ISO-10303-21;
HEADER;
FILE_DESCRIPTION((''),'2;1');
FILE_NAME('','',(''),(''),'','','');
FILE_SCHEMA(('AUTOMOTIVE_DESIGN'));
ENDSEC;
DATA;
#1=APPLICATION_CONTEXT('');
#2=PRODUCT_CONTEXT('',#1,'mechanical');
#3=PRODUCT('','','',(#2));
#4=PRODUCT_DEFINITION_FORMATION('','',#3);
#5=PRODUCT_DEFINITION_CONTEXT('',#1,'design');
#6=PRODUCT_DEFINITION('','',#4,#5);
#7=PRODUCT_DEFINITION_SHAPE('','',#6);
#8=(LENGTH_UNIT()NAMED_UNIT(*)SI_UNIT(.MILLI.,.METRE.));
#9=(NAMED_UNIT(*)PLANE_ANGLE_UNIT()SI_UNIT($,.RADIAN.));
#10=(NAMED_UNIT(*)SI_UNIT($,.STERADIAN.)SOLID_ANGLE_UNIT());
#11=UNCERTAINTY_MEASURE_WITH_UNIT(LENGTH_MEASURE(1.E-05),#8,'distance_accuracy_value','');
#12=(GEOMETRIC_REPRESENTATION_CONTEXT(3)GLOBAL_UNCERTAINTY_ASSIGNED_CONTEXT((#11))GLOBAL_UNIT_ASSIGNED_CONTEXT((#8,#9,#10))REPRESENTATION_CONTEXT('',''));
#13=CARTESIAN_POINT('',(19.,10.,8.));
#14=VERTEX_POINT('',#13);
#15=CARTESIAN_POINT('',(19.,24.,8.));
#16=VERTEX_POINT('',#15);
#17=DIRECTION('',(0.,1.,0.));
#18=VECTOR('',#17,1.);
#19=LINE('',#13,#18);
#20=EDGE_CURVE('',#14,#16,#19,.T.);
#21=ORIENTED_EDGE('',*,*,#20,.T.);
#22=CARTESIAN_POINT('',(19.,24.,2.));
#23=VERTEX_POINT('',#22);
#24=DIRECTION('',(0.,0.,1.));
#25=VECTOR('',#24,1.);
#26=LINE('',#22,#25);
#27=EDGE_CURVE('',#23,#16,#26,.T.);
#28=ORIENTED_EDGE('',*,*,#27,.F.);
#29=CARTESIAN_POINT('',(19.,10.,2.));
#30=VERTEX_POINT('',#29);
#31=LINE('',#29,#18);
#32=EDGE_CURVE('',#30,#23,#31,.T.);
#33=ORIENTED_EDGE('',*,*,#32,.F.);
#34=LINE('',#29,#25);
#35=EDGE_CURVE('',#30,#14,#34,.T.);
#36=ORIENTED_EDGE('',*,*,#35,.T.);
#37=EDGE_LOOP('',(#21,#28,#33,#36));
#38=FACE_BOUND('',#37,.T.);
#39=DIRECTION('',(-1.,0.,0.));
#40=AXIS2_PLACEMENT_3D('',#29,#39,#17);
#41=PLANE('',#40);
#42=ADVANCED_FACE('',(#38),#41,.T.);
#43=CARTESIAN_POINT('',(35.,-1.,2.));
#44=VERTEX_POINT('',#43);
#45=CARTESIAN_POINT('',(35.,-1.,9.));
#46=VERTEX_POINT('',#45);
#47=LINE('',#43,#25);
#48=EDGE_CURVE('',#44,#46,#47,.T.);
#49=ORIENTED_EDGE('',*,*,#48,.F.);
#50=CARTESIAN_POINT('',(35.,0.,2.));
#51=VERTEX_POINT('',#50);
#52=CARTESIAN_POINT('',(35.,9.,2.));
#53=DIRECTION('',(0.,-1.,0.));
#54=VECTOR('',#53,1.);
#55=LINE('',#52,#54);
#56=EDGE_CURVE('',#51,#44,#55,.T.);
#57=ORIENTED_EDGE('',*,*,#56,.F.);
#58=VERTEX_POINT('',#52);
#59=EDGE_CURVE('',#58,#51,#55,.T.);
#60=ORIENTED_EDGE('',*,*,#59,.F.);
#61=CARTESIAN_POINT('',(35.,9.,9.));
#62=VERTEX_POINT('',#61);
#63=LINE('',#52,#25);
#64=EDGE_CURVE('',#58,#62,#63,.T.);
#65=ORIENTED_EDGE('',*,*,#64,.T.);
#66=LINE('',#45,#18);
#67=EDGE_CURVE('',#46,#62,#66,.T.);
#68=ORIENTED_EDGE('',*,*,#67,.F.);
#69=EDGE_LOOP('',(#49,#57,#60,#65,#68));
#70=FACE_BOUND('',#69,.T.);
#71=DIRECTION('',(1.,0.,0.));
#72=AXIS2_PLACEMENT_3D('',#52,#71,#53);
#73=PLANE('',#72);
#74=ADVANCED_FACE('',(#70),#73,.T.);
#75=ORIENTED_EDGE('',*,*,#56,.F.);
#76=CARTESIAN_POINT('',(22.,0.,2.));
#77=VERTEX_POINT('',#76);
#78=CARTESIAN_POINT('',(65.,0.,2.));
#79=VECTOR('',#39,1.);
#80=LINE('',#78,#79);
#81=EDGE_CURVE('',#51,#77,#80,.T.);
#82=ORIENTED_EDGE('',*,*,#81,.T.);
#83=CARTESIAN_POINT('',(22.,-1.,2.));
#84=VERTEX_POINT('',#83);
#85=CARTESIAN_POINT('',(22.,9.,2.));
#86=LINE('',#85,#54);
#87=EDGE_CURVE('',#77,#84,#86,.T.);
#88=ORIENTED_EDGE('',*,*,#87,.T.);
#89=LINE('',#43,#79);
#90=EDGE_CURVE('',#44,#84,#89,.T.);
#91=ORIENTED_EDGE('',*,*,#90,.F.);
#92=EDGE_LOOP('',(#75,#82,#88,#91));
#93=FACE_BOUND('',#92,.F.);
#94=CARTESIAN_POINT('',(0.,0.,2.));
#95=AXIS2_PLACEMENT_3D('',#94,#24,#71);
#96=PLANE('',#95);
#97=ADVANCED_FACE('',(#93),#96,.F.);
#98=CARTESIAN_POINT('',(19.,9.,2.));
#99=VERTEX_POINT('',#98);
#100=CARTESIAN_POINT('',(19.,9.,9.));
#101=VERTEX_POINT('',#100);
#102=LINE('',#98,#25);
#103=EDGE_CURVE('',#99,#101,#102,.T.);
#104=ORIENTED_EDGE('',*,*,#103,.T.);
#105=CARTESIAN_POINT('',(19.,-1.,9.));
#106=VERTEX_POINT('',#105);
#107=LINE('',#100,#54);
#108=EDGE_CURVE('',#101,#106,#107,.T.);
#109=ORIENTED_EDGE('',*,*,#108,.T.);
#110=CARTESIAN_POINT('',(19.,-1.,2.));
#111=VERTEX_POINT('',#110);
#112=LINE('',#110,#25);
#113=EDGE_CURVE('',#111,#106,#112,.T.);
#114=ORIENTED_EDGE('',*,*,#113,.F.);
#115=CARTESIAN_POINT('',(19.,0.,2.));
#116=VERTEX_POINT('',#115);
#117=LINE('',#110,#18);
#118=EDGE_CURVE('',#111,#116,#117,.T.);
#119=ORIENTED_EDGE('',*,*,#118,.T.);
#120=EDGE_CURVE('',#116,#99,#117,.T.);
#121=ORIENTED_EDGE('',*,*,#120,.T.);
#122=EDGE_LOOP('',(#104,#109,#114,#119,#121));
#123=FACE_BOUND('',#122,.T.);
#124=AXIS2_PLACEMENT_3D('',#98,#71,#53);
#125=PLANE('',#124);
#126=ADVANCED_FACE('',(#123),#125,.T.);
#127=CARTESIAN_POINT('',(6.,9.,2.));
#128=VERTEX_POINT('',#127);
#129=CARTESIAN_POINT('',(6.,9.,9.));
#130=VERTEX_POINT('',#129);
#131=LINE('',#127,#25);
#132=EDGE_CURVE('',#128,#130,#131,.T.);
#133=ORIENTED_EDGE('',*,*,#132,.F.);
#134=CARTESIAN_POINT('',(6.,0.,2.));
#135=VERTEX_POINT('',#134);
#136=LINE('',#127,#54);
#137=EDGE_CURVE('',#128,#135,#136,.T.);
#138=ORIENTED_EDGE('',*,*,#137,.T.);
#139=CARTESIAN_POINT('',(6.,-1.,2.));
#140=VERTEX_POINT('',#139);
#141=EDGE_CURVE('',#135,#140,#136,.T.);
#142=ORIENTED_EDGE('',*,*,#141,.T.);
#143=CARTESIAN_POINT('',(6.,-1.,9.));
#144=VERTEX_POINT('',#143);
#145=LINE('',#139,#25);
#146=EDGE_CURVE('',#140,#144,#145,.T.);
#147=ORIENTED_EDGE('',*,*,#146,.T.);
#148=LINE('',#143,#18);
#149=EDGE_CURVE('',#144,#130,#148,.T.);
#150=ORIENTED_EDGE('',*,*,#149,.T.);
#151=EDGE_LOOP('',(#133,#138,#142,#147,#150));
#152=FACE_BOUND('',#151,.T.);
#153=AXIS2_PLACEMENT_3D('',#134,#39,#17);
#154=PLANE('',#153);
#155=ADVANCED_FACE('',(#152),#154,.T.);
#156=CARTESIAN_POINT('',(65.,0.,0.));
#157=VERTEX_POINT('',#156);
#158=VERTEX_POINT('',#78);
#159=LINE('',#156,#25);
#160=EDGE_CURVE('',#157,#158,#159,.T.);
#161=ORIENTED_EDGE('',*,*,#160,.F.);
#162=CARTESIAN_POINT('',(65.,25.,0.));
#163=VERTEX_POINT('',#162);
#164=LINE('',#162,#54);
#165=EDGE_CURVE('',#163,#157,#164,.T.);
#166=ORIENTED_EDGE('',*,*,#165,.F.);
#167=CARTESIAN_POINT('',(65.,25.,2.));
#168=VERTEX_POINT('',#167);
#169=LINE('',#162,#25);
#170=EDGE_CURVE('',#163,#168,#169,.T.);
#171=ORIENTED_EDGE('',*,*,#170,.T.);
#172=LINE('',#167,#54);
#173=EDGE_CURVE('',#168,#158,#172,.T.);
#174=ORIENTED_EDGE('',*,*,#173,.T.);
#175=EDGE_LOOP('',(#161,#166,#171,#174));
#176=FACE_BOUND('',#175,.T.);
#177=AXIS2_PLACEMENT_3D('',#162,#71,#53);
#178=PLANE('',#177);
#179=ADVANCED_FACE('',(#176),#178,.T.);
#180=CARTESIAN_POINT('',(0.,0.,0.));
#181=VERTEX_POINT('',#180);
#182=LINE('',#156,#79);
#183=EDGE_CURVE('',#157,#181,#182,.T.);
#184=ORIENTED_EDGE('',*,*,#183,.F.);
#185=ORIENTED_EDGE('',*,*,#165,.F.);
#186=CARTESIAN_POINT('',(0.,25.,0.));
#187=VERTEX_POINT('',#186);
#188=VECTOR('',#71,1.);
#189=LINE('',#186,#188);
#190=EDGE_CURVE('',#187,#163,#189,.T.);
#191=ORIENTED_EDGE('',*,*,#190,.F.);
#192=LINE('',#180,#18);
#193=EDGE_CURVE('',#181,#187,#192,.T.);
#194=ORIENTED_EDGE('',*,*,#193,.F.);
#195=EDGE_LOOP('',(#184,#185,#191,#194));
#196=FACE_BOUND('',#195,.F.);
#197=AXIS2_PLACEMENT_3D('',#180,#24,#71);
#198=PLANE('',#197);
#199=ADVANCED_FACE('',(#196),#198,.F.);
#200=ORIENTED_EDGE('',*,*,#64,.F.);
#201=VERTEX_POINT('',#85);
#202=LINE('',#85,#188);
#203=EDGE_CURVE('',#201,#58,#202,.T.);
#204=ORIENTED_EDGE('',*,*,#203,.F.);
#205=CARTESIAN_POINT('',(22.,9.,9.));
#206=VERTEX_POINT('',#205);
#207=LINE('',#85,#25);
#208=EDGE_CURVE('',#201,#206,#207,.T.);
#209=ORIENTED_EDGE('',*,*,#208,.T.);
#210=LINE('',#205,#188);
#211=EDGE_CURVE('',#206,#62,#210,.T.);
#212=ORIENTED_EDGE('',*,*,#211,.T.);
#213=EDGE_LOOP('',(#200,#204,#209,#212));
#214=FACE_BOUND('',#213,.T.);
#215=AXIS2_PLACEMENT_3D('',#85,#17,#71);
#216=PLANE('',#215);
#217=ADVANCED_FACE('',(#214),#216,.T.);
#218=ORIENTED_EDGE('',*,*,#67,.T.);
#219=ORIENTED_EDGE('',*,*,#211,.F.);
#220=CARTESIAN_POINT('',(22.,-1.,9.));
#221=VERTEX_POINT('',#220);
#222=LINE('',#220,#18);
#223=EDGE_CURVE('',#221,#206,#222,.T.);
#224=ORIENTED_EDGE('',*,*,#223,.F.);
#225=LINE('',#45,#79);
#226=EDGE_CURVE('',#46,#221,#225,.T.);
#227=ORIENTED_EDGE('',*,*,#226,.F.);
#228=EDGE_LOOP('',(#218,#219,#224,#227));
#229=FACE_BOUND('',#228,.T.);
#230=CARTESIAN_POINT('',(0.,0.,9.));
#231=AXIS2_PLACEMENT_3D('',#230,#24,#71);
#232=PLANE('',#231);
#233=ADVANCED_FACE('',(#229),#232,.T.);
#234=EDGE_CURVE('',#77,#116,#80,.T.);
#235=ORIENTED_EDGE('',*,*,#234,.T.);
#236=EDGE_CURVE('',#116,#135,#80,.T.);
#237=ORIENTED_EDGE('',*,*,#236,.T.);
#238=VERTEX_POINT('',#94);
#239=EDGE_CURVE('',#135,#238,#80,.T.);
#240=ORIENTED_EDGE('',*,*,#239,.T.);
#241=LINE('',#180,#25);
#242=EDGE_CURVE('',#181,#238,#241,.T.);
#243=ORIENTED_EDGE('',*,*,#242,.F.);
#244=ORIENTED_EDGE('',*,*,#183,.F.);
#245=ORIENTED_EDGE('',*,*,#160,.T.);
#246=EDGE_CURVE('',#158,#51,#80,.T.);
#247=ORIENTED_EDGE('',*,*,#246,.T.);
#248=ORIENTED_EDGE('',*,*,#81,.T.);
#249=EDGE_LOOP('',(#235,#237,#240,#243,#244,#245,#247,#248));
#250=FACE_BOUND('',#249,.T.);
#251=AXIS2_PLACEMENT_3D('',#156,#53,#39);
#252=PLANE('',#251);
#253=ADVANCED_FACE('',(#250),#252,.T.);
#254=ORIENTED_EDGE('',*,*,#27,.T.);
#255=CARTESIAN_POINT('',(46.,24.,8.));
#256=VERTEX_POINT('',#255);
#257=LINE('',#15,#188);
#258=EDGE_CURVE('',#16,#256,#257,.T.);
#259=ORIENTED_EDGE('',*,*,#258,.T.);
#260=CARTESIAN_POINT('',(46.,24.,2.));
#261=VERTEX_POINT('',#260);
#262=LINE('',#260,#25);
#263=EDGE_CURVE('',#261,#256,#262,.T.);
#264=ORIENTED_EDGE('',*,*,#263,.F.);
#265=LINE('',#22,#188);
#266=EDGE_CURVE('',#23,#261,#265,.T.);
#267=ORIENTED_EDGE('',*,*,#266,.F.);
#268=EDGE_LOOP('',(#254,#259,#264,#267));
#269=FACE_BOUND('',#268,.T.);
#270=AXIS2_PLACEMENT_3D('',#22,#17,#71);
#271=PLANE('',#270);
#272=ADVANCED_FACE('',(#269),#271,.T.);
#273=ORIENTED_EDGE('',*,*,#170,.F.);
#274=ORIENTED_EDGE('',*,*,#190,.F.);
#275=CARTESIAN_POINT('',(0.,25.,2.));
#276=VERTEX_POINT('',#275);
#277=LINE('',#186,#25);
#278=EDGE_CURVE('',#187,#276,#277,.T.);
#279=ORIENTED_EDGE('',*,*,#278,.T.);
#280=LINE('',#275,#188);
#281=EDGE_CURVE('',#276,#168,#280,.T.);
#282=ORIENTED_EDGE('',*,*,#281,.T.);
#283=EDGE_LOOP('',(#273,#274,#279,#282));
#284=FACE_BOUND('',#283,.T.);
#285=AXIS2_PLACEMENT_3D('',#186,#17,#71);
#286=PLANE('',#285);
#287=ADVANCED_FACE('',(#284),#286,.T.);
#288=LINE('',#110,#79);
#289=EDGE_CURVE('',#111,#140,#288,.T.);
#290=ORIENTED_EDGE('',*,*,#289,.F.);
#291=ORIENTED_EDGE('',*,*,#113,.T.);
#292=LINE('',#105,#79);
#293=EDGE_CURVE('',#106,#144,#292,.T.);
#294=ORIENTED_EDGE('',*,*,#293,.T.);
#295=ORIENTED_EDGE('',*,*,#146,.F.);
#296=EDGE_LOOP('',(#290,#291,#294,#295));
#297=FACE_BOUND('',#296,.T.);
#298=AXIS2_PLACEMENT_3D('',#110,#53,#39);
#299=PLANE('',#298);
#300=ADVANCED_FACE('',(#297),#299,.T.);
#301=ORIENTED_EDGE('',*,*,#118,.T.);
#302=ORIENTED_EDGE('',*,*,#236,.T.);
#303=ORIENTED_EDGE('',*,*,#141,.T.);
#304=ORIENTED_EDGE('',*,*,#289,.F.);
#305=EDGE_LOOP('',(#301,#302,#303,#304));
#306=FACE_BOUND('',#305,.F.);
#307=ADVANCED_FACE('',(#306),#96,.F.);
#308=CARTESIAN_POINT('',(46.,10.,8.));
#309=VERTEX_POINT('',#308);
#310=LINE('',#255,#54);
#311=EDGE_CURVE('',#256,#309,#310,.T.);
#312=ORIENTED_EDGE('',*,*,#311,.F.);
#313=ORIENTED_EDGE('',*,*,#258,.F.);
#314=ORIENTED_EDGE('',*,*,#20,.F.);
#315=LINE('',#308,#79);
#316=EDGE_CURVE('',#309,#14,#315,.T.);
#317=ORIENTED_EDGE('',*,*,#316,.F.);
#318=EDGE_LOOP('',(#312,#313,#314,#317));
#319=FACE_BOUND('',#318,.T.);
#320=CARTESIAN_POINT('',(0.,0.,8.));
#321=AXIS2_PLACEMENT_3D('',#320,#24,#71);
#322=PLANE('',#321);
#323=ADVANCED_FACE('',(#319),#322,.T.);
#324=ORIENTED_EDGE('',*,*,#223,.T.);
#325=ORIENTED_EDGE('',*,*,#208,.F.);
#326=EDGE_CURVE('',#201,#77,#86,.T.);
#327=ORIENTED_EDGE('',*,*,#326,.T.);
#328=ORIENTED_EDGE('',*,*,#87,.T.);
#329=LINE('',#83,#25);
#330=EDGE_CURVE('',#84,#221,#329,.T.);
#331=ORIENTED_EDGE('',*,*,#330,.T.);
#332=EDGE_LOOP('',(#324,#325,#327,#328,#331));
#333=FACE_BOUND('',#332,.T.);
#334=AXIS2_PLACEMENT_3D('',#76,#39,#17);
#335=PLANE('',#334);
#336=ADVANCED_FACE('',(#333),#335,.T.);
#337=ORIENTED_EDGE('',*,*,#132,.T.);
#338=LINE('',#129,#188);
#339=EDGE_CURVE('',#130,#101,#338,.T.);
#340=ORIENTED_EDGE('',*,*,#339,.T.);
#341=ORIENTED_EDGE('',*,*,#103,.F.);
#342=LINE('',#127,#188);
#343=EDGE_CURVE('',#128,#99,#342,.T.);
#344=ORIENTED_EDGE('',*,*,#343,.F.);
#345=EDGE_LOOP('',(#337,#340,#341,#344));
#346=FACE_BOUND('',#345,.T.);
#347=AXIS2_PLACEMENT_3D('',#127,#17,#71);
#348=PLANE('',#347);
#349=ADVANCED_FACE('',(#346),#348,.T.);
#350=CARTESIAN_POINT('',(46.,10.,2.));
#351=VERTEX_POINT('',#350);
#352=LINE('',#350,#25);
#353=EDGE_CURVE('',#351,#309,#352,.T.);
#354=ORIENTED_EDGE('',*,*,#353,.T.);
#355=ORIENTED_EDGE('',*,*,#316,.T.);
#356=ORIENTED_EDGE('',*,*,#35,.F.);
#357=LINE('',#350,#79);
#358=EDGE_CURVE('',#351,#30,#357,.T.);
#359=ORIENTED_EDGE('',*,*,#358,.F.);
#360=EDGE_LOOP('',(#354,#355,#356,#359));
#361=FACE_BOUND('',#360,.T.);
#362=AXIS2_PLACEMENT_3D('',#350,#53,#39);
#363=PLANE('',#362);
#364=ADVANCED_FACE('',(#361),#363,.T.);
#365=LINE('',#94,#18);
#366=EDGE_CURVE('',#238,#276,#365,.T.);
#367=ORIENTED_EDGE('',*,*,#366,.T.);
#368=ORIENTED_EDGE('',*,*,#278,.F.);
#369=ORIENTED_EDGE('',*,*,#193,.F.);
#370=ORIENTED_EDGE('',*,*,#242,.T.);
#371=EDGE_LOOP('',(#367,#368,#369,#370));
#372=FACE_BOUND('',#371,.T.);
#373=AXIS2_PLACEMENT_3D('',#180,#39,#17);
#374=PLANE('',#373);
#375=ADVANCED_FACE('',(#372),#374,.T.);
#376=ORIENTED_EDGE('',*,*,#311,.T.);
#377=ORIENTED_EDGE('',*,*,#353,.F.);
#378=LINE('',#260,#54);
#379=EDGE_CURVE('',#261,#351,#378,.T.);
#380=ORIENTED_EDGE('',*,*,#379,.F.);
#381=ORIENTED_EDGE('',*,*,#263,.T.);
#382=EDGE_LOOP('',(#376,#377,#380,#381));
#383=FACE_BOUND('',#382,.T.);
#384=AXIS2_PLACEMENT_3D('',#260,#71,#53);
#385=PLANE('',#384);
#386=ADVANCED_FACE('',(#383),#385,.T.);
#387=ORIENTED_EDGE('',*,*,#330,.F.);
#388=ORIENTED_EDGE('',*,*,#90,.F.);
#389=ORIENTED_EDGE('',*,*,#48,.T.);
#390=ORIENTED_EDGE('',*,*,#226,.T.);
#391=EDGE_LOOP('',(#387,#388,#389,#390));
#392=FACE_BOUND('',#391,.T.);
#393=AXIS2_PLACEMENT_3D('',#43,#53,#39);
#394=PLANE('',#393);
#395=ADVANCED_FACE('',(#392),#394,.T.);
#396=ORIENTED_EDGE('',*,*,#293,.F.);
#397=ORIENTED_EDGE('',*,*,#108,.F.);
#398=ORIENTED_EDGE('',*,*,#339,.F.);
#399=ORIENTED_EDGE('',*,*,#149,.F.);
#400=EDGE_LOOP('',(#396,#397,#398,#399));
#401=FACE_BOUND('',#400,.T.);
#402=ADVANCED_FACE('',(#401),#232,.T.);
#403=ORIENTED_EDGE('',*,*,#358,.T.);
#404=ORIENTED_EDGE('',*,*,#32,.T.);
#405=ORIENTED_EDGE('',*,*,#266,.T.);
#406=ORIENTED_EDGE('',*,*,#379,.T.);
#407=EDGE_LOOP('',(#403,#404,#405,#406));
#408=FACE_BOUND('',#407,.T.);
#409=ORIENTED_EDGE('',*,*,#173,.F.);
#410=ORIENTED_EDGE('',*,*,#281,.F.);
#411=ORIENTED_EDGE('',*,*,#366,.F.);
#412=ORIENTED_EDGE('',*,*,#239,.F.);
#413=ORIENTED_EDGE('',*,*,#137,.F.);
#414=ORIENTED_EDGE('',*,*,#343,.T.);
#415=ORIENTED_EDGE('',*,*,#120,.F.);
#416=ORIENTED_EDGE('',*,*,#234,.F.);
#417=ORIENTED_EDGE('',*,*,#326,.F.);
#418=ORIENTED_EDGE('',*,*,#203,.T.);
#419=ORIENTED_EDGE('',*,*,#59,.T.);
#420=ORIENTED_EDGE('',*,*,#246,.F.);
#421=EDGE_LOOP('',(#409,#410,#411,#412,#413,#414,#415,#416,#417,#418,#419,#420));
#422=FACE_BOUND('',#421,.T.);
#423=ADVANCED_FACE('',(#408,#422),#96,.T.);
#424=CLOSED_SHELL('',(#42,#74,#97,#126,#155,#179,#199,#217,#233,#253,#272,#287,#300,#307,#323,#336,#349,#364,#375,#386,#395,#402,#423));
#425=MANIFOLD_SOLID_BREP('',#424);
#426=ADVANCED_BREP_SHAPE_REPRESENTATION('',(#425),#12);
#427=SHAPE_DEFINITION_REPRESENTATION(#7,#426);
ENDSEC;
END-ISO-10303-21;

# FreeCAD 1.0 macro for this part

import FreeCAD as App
import Part
import Sketcher
from FreeCAD import Vector


def add_polygon(sketch, points):
    """Adds a closed chain of lines whose ends are joined by coincident constraints."""
    first, n = sketch.GeometryCount, len(points)
    for a, b in zip(points, points[1:] + points[:1]):
        sketch.addGeometry(Part.LineSegment(App.Vector(*a, 0), App.Vector(*b, 0)), False)
    for i in range(n):
        sketch.addConstraint(Sketcher.Constraint("Coincident", first + i, 2, first + (i + 1) % n, 1))

doc = App.newDocument("Part")
params = doc.addObject("Spreadsheet::Sheet", "Params")
for row, (alias, value) in enumerate([
    ("sketch1_width", "65 mm"),
    ("sketch1_height", "25 mm"),
    ("pad1_length", "2 mm"),
    ("sketch2_width", "27 mm"),
    ("sketch2_height", "14 mm"),
    ("pad2_length", "6 mm"),
    ("sketch3_width", "13 mm"),
    ("sketch3_height", "10 mm"),
    ("pad3_length", "7 mm"),
], start=1):
    params.set(f"A{row}", alias)
    params.set(f"B{row}", "=" + value)
    params.setAlias(f"B{row}", alias)

body = doc.addObject("PartDesign::Body", "Body")

sketch1 = body.newObject("Sketcher::SketchObject", "Sketch")
sketch1.AttachmentSupport = (doc.getObject("XY_Plane"), [""])
sketch1.MapMode = "FlatFace"
add_polygon(sketch1, [(65, 25), (0, 25), (0, 0), (65, 0)])
sketch1.addConstraint([
    Sketcher.Constraint("Horizontal", 0),
    Sketcher.Constraint("Vertical", 1),
    Sketcher.Constraint("Horizontal", 2),
    Sketcher.Constraint("Vertical", 3),
    Sketcher.Constraint("Coincident", 1, 2, -1, 1),
    Sketcher.Constraint("DistanceX", 0, 2, 0, 1, 65.0),
    Sketcher.Constraint("DistanceY", 1, 2, 1, 1, 25.0),
])
sketch1.setExpression("Constraints[9]", "Params.sketch1_width")
sketch1.setExpression("Constraints[10]", "Params.sketch1_height")
pad1 = body.newObject("PartDesign::Pad", "Pad")
pad1.Profile = sketch1
pad1.setExpression("Length", "Params.pad1_length")

sketch2 = body.newObject("Sketcher::SketchObject", "Sketch001")
sketch2.AttachmentSupport = (doc.getObject("XY_Plane"), [""])
sketch2.MapMode = "FlatFace"
sketch2.AttachmentOffset = App.Placement(Vector(0, 0, 2), App.Rotation())
add_polygon(sketch2, [(46, 24), (19, 24), (19, 10), (46, 10)])
sketch2.addConstraint([
    Sketcher.Constraint("Horizontal", 0),
    Sketcher.Constraint("Vertical", 1),
    Sketcher.Constraint("Horizontal", 2),
    Sketcher.Constraint("Vertical", 3),
    Sketcher.Constraint("DistanceX", 0, 2, 0, 1, 27.0),
    Sketcher.Constraint("DistanceX", -1, 1, 0, 2, 19.0),
    Sketcher.Constraint("DistanceY", -1, 1, 1, 2, 10.0),
    Sketcher.Constraint("DistanceY", 1, 2, 1, 1, 14.0),
])
sketch2.setExpression("Constraints[8]", "Params.sketch2_width")
sketch2.setExpression("Constraints[11]", "Params.sketch2_height")
pad2 = body.newObject("PartDesign::Pad", "Pad001")
pad2.Profile = sketch2
pad2.setExpression("Length", "Params.pad2_length")

sketch3 = body.newObject("Sketcher::SketchObject", "Sketch002")
sketch3.AttachmentSupport = (doc.getObject("XY_Plane"), [""])
sketch3.MapMode = "FlatFace"
sketch3.AttachmentOffset = App.Placement(Vector(0, 0, 2), App.Rotation())
add_polygon(sketch3, [(22, 9), (22, -1), (35, -1), (35, 9)])
add_polygon(sketch3, [(19, 9), (6, 9), (6, -1), (19, -1)])
sketch3.addConstraint([
    Sketcher.Constraint("Vertical", 0),
    Sketcher.Constraint("Horizontal", 1),
    Sketcher.Constraint("Vertical", 2),
    Sketcher.Constraint("Horizontal", 3),
    Sketcher.Constraint("Horizontal", 4),
    Sketcher.Constraint("Vertical", 5),
    Sketcher.Constraint("Horizontal", 6),
    Sketcher.Constraint("Vertical", 7),
    Sketcher.Constraint("Horizontal", 3, 2, 4, 2),
    Sketcher.Constraint("Horizontal", 1, 2, 5, 2),
    Sketcher.Constraint("Equal", 3, 4),
    Sketcher.Constraint("DistanceX", 1, 1, 1, 2, 13.0),
    Sketcher.Constraint("DistanceY", 0, 2, 0, 1, 10.0),
    Sketcher.Constraint("DistanceY", 0, 2, -1, 1, 1.0),
    Sketcher.Constraint("DistanceX", -1, 1, 4, 2, 6.0),
    Sketcher.Constraint("DistanceX", 6, 2, 0, 2, 3.0),
])
sketch3.setExpression("Constraints[19]", "Params.sketch3_width")
sketch3.setExpression("Constraints[20]", "Params.sketch3_height")
pad3 = body.newObject("PartDesign::Pad", "Pad002")
pad3.Profile = sketch3
pad3.setExpression("Length", "Params.pad3_length")

doc.recompute()
